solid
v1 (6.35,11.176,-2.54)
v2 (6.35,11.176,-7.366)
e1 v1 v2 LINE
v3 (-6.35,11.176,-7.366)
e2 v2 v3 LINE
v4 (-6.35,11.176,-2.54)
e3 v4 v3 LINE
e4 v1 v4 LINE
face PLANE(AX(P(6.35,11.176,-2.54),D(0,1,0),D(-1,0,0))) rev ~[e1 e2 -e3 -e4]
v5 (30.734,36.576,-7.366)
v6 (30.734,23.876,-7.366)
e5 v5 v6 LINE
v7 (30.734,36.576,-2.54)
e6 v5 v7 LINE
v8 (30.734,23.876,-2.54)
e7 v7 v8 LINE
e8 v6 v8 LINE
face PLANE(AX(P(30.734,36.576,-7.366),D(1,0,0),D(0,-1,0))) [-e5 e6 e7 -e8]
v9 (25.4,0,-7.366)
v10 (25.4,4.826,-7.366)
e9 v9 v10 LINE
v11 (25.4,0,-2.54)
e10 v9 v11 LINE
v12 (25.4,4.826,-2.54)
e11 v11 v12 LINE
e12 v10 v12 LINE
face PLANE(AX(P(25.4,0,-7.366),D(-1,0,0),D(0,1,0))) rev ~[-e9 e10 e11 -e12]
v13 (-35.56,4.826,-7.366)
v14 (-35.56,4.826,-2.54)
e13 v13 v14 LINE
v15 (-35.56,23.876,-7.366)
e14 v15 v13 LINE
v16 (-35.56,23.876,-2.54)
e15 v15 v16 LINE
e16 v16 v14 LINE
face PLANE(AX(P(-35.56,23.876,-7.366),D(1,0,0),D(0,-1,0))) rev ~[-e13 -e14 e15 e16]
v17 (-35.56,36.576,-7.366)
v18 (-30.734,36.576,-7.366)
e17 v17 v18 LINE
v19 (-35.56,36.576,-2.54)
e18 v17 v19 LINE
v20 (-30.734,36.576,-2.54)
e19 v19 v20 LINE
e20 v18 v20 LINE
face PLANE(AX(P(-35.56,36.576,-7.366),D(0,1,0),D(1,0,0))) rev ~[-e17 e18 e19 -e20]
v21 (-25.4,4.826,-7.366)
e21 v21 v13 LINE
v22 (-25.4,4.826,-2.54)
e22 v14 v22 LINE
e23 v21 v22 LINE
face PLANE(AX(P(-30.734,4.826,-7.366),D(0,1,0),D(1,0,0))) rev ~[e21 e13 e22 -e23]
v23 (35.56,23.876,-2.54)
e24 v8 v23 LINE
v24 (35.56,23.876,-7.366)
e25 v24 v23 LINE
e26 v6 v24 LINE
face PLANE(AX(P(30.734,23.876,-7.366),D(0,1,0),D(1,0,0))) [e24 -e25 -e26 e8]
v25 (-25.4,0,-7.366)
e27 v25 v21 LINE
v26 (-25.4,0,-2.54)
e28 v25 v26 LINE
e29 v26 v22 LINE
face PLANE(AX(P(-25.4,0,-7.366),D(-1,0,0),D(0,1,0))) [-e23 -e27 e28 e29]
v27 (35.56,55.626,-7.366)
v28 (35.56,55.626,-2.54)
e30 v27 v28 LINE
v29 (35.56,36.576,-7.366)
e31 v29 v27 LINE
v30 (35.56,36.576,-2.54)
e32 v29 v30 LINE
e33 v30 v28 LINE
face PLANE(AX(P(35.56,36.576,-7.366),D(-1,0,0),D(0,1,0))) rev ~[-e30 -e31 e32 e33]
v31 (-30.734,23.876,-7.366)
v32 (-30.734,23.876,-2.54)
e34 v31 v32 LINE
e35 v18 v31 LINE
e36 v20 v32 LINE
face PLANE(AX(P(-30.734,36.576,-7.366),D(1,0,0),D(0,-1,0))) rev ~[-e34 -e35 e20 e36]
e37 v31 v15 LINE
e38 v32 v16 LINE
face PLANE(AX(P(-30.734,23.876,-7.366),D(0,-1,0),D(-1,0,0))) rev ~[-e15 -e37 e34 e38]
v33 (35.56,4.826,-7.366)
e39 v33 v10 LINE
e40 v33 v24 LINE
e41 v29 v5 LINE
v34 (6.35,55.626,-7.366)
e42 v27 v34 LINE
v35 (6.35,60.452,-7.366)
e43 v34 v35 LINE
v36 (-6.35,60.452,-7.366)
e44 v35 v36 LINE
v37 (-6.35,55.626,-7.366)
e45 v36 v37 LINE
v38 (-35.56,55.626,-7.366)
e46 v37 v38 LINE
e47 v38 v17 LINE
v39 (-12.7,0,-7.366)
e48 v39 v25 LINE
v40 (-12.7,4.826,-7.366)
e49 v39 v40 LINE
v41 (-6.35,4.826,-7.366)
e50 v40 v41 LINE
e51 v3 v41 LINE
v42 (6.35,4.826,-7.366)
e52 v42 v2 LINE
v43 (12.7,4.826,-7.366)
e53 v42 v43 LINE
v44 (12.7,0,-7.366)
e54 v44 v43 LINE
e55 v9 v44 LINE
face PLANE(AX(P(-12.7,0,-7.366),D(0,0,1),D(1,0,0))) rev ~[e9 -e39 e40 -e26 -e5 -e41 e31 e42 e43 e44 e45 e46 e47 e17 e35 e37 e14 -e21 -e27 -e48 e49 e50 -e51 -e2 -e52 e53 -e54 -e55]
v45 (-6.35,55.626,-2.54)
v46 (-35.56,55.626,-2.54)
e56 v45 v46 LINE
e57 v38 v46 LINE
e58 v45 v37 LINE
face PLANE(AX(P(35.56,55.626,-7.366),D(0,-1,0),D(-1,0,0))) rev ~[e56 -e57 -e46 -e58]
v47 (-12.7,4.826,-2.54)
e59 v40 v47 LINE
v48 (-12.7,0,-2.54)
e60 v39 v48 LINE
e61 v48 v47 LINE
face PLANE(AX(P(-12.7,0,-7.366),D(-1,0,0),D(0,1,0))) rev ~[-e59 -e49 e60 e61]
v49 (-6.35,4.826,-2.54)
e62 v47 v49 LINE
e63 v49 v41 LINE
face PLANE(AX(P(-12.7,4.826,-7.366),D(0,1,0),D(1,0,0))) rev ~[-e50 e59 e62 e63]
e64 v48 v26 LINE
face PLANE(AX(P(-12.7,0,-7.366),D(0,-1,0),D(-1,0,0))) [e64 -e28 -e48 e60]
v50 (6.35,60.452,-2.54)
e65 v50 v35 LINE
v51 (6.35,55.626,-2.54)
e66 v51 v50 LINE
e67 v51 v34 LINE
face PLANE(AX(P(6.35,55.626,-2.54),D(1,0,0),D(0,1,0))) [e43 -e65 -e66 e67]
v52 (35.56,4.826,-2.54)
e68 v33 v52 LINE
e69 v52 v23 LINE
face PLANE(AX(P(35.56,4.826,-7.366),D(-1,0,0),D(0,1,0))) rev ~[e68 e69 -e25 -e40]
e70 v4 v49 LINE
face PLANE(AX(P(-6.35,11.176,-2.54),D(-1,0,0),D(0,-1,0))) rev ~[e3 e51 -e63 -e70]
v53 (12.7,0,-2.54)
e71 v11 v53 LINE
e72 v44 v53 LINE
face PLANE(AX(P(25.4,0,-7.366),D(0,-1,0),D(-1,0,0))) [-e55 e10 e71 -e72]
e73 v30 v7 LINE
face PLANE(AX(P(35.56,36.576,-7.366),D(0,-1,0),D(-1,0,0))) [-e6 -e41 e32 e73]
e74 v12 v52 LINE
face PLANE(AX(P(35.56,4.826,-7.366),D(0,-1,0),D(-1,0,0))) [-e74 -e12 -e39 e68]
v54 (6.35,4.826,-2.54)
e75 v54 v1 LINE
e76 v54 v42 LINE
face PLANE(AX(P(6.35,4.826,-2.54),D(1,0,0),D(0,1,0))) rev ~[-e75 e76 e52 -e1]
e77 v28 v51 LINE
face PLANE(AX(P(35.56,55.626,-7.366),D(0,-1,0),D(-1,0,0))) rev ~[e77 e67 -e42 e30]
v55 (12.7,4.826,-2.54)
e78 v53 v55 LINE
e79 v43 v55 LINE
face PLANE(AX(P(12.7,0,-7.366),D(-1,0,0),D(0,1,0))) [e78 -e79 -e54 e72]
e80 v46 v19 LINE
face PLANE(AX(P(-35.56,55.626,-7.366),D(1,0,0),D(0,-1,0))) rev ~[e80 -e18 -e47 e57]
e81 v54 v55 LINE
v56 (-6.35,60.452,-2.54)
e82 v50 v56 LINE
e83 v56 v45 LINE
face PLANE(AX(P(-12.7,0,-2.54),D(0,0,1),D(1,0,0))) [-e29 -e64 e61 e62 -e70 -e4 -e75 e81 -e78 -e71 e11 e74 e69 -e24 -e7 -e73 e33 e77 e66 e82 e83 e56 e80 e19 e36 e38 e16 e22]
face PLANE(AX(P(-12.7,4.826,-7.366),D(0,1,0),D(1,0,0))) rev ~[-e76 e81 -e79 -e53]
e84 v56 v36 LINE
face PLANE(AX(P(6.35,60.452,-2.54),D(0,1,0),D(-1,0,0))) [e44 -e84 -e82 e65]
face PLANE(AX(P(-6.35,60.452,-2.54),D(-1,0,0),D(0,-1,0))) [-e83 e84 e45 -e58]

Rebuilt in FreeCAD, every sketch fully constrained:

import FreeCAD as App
import Part
import Sketcher
Q = App.Units.Quantity

doc = App.newDocument("Part")
body = doc.addObject("PartDesign::Body", "Body")

sketch1 = doc.addObject("Sketcher::SketchObject", "Sketch")
body.addObject(sketch1)
sketch1.AttachmentSupport = (doc.XY_Plane, [""])
sketch1.MapMode = "FlatFace"
sketch1.AttachmentOffset = App.Placement(App.Vector(0, 0, -0.29 * 25.4), App.Rotation())
sketch1.addGeometry([
    Part.LineSegment(App.Vector(-25.4, 0, 0), App.Vector(-12.7, 0, 0)),
    Part.LineSegment(App.Vector(-12.7, 0, 0), App.Vector(-12.7, 4.826, 0)),
    Part.LineSegment(App.Vector(-12.7, 4.826, 0), App.Vector(12.7, 4.826, 0)),
    Part.LineSegment(App.Vector(12.7, 4.826, 0), App.Vector(12.7, 0, 0)),
    Part.LineSegment(App.Vector(12.7, 0, 0), App.Vector(25.4, 0, 0)),
    Part.LineSegment(App.Vector(25.4, 0, 0), App.Vector(25.4, 4.826, 0)),
    Part.LineSegment(App.Vector(25.4, 4.826, 0), App.Vector(35.56, 4.826, 0)),
    Part.LineSegment(App.Vector(35.56, 4.826, 0), App.Vector(35.56, 23.876, 0)),
    Part.LineSegment(App.Vector(35.56, 23.876, 0), App.Vector(30.734, 23.876, 0)),
    Part.LineSegment(App.Vector(30.734, 23.876, 0), App.Vector(30.734, 36.576, 0)),
    Part.LineSegment(App.Vector(30.734, 36.576, 0), App.Vector(35.56, 36.576, 0)),
    Part.LineSegment(App.Vector(35.56, 36.576, 0), App.Vector(35.56, 55.626, 0)),
    Part.LineSegment(App.Vector(35.56, 55.626, 0), App.Vector(-35.56, 55.626, 0)),
    Part.LineSegment(App.Vector(-35.56, 55.626, 0), App.Vector(-35.56, 36.576, 0)),
    Part.LineSegment(App.Vector(-35.56, 36.576, 0), App.Vector(-30.734, 36.576, 0)),
    Part.LineSegment(App.Vector(-30.734, 36.576, 0), App.Vector(-30.734, 23.876, 0)),
    Part.LineSegment(App.Vector(-30.734, 23.876, 0), App.Vector(-35.56, 23.876, 0)),
    Part.LineSegment(App.Vector(-35.56, 23.876, 0), App.Vector(-35.56, 4.826, 0)),
    Part.LineSegment(App.Vector(-35.56, 4.826, 0), App.Vector(-25.4, 4.826, 0)),
    Part.LineSegment(App.Vector(-25.4, 4.826, 0), App.Vector(-25.4, 0, 0)),
], False)
sketch1.addConstraint([
    Sketcher.Constraint("Coincident", 0, 2, 1, 1),
    Sketcher.Constraint("Coincident", 1, 2, 2, 1),
    Sketcher.Constraint("Coincident", 2, 2, 3, 1),
    Sketcher.Constraint("Coincident", 3, 2, 4, 1),
    Sketcher.Constraint("Coincident", 4, 2, 5, 1),
    Sketcher.Constraint("Coincident", 5, 2, 6, 1),
    Sketcher.Constraint("Coincident", 6, 2, 7, 1),
    Sketcher.Constraint("Coincident", 7, 2, 8, 1),
    Sketcher.Constraint("Coincident", 8, 2, 9, 1),
    Sketcher.Constraint("Coincident", 9, 2, 10, 1),
    Sketcher.Constraint("Coincident", 10, 2, 11, 1),
    Sketcher.Constraint("Coincident", 11, 2, 12, 1),
    Sketcher.Constraint("Coincident", 12, 2, 13, 1),
    Sketcher.Constraint("Coincident", 13, 2, 14, 1),
    Sketcher.Constraint("Coincident", 14, 2, 15, 1),
    Sketcher.Constraint("Coincident", 15, 2, 16, 1),
    Sketcher.Constraint("Coincident", 16, 2, 17, 1),
    Sketcher.Constraint("Coincident", 17, 2, 18, 1),
    Sketcher.Constraint("Coincident", 18, 2, 19, 1),
    Sketcher.Constraint("Coincident", 19, 2, 0, 1),
    Sketcher.Constraint("Horizontal", 0),
    Sketcher.Constraint("Vertical", 1),
    Sketcher.Constraint("Horizontal", 2),
    Sketcher.Constraint("Vertical", 3),
    Sketcher.Constraint("Horizontal", 4),
    Sketcher.Constraint("Vertical", 5),
    Sketcher.Constraint("Horizontal", 6),
    Sketcher.Constraint("Vertical", 7),
    Sketcher.Constraint("Horizontal", 8),
    Sketcher.Constraint("Vertical", 9),
    Sketcher.Constraint("Horizontal", 10),
    Sketcher.Constraint("Vertical", 11),
    Sketcher.Constraint("Horizontal", 12),
    Sketcher.Constraint("Vertical", 13),
    Sketcher.Constraint("Horizontal", 14),
    Sketcher.Constraint("Vertical", 15),
    Sketcher.Constraint("Horizontal", 16),
    Sketcher.Constraint("Vertical", 17),
    Sketcher.Constraint("Horizontal", 18),
    Sketcher.Constraint("Vertical", 19),
    Sketcher.Constraint("Symmetric", 0, 2, 3, 2, -1, 1),
    Sketcher.Constraint("Symmetric", 10, 2, 13, 2, -2),
    Sketcher.Constraint("Symmetric", 8, 2, 15, 2, -2),
    Sketcher.Constraint("Symmetric", 6, 2, 17, 2, -2),
    Sketcher.Constraint("Symmetric", 4, 2, 19, 2, -2),
    Sketcher.Constraint("Horizontal", 2, 2, 5, 2),
    Sketcher.Constraint("Vertical", 7, 2, 10, 2),
    Sketcher.Constraint("Equal", 16, 1),
    Sketcher.Constraint("Equal", 4, 9),
    Sketcher.Constraint("Equal", 7, 11),
    Sketcher.Constraint("DistanceX", 0, 1, 0, 2, Q("0.5 in")),
    Sketcher.Constraint("DistanceY", 6, 2, 11, 2, Q("2 in")),
    Sketcher.Constraint("DistanceX", 8, 2, 8, 1, Q("0.19 in")),
    Sketcher.Constraint("DistanceX", 0, 2, -1, 1, Q("0.5 in")),
    Sketcher.Constraint("DistanceX", 6, 1, 6, 2, Q("0.4 in")),
])
pad1 = doc.addObject("PartDesign::Pad", "Pad")
body.addObject(pad1)
pad1.Profile = sketch1
pad1.Length = Q("0.19 in")

sketch2 = doc.addObject("Sketcher::SketchObject", "Sketch001")
body.addObject(sketch2)
sketch2.AttachmentSupport = (doc.XY_Plane, [""])
sketch2.MapMode = "FlatFace"
sketch2.AttachmentOffset = App.Placement(App.Vector(0, 0, -0.1 * 25.4), App.Rotation())
sketch2.addGeometry([
    Part.LineSegment(App.Vector(-6.35, 55.626, 0), App.Vector(6.35, 55.626, 0)),
    Part.LineSegment(App.Vector(6.35, 55.626, 0), App.Vector(6.35, 60.452, 0)),
    Part.LineSegment(App.Vector(6.35, 60.452, 0), App.Vector(-6.35, 60.452, 0)),
    Part.LineSegment(App.Vector(-6.35, 60.452, 0), App.Vector(-6.35, 55.626, 0)),
], False)
sketch2.addConstraint([
    Sketcher.Constraint("Coincident", 0, 2, 1, 1),
    Sketcher.Constraint("Coincident", 1, 2, 2, 1),
    Sketcher.Constraint("Coincident", 2, 2, 3, 1),
    Sketcher.Constraint("Coincident", 3, 2, 0, 1),
    Sketcher.Constraint("Horizontal", 0),
    Sketcher.Constraint("Vertical", 1),
    Sketcher.Constraint("Horizontal", 2),
    Sketcher.Constraint("Vertical", 3),
    Sketcher.Constraint("DistanceX", 0, 1, 0, 2, Q("0.5 in")),
    Sketcher.Constraint("DistanceY", 1, 1, 1, 2, Q("0.19 in")),
    Sketcher.Constraint("DistanceX", -1, 1, 0, 2, Q("0.25 in")),
    Sketcher.Constraint("DistanceY", -1, 1, 0, 2, Q("2.19 in")),
])
pad2 = doc.addObject("PartDesign::Pad", "Pad001")
body.addObject(pad2)
pad2.Profile = sketch2
pad2.Length = Q("0.19 in")
pad2.Reversed = True

sketch3 = doc.addObject("Sketcher::SketchObject", "Sketch002")
body.addObject(sketch3)
sketch3.AttachmentSupport = (doc.XY_Plane, [""])
sketch3.MapMode = "FlatFace"
sketch3.AttachmentOffset = App.Placement(App.Vector(0, 0, -0.1 * 25.4), App.Rotation())
sketch3.addGeometry([
    Part.LineSegment(App.Vector(-6.35, 11.176, 0), App.Vector(-6.35, 4.826, 0)),
    Part.LineSegment(App.Vector(-6.35, 4.826, 0), App.Vector(6.35, 4.826, 0)),
    Part.LineSegment(App.Vector(6.35, 4.826, 0), App.Vector(6.35, 11.176, 0)),
    Part.LineSegment(App.Vector(6.35, 11.176, 0), App.Vector(-6.35, 11.176, 0)),
], False)
sketch3.addConstraint([
    Sketcher.Constraint("Coincident", 0, 2, 1, 1),
    Sketcher.Constraint("Coincident", 1, 2, 2, 1),
    Sketcher.Constraint("Coincident", 2, 2, 3, 1),
    Sketcher.Constraint("Coincident", 3, 2, 0, 1),
    Sketcher.Constraint("Vertical", 0),
    Sketcher.Constraint("Horizontal", 1),
    Sketcher.Constraint("Vertical", 2),
    Sketcher.Constraint("Horizontal", 3),
    Sketcher.Constraint("DistanceX", 1, 1, 1, 2, Q("0.5 in")),
    Sketcher.Constraint("DistanceY", 0, 2, 0, 1, Q("0.25 in")),
    Sketcher.Constraint("DistanceX", 0, 2, -1, 1, Q("0.25 in")),
    Sketcher.Constraint("DistanceY", -1, 1, 0, 2, Q("0.19 in")),
])
pocket1 = doc.addObject("PartDesign::Pocket", "Pocket")
body.addObject(pocket1)
pocket1.Profile = sketch3
pocket1.Length = Q("0.19 in")

doc.recompute()
